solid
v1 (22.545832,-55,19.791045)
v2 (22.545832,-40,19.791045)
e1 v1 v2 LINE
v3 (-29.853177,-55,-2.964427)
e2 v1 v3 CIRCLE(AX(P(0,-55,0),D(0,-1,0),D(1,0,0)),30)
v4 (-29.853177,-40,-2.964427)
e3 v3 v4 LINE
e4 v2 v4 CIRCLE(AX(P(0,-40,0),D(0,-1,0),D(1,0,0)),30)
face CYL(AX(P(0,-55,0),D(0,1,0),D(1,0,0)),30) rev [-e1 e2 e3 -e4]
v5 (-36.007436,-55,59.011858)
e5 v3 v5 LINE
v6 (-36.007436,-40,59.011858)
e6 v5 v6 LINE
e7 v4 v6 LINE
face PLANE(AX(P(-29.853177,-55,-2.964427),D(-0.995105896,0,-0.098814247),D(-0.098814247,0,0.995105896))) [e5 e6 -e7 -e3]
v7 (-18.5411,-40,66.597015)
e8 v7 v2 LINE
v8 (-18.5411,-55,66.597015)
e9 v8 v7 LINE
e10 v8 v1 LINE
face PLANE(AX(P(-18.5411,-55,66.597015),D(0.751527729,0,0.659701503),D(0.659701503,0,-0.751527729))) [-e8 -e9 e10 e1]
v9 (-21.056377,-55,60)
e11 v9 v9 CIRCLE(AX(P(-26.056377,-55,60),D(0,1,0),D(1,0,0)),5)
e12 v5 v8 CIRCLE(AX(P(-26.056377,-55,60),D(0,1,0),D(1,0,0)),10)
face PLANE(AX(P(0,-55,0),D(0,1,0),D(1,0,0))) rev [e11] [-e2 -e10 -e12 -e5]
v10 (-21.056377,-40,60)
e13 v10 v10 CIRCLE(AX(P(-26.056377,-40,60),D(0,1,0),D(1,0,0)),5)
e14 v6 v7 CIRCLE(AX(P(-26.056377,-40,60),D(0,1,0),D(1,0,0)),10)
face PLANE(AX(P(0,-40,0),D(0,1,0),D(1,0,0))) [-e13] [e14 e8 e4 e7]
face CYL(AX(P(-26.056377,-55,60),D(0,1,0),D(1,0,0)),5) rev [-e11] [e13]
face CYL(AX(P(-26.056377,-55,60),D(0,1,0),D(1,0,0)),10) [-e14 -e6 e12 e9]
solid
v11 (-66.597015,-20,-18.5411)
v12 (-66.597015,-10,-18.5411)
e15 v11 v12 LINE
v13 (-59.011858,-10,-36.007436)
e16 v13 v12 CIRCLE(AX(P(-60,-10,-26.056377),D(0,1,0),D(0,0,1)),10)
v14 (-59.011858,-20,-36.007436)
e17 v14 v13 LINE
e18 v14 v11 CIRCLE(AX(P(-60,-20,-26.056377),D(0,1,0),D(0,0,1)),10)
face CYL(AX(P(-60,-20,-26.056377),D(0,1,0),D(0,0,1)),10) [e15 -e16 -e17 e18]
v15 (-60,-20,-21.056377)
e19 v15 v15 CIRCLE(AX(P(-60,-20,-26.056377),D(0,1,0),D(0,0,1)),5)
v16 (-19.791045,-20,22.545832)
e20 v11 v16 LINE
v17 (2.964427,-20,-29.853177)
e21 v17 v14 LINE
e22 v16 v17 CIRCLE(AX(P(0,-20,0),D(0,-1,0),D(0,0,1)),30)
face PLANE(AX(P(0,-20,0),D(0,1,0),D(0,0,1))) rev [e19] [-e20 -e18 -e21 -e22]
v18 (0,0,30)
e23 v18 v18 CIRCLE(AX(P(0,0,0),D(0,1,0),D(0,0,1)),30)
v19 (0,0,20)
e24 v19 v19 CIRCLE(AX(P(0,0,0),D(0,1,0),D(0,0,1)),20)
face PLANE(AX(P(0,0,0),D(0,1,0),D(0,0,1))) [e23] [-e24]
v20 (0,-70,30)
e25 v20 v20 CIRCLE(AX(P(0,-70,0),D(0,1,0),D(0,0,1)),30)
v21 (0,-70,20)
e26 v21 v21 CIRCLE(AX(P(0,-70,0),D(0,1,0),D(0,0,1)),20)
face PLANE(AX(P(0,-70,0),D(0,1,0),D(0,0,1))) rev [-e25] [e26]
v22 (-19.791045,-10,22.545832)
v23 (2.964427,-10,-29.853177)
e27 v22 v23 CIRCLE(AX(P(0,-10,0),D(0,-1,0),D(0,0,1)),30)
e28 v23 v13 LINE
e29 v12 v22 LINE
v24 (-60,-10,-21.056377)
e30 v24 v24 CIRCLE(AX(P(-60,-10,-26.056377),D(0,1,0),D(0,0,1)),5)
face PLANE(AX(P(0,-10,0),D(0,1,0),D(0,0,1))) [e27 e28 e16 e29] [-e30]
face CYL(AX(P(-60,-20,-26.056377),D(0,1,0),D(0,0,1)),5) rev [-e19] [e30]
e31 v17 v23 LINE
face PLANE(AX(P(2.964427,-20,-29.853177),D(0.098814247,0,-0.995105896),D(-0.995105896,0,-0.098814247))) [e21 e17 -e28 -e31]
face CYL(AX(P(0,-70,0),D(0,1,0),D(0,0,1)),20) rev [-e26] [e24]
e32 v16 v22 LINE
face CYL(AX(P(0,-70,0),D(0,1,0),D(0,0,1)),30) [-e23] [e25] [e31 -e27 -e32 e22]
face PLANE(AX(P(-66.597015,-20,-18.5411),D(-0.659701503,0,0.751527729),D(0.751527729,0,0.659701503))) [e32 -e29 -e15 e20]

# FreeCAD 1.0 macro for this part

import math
import FreeCAD as App
import Part
import Sketcher

V = App.Vector

doc = App.newDocument("Part")
body = doc.addObject("PartDesign::Body", "Body")

sketch1 = body.newObject("Sketcher::SketchObject", "Sketch")
sketch1.AttachmentSupport = (doc.getObject("XZ_Plane"), [""])
sketch1.MapMode = "FlatFace"
sketch1.addGeometry(Part.Circle(V(0, 0, 0), V(0, 0, 1), 30), False)
sketch1.addGeometry(Part.Circle(V(0, 0, 0), V(0, 0, 1), 20), False)
sketch1.addConstraint(Sketcher.Constraint("Coincident", 0, 3, -1, 1))
sketch1.addConstraint(Sketcher.Constraint("Coincident", 1, 3, -1, 1))
sketch1.addConstraint(Sketcher.Constraint("Diameter", 0, 60.0))
sketch1.addConstraint(Sketcher.Constraint("Diameter", 1, 40.0))
pad1 = body.newObject("PartDesign::Pad", "Pad")
pad1.Profile = sketch1
pad1.Length = 70

sketch2 = body.newObject("Sketcher::SketchObject", "Sketch001")
sketch2.AttachmentSupport = (doc.getObject("XZ_Plane"), [""])
sketch2.MapMode = "FlatFace"
sketch2.AttachmentOffset = App.Placement(V(0, 0, 10), App.Rotation())
sketch2.addGeometry(Part.LineSegment(V(3, -30, 0), V(-59, -36, 0)), False)
sketch2.addGeometry(Part.ArcOfCircle(Part.Circle(V(-60, -26, 0), V(0, 0, 1), 10), math.radians(131), math.radians(276)), False)
sketch2.addGeometry(Part.LineSegment(V(-67, -19, 0), V(-20, 23, 0)), False)
sketch2.addGeometry(Part.ArcOfCircle(Part.Circle(V(0, 0, 0), V(0, 0, 1), 30), math.radians(131), math.radians(276)), False)
sketch2.addGeometry(Part.Circle(V(-60, -26, 0), V(0, 0, 1), 5), False)
sketch2.addConstraint(Sketcher.Constraint("Tangent", 0, 2, 1, 2))
sketch2.addConstraint(Sketcher.Constraint("Tangent", 1, 1, 2, 1))
sketch2.addConstraint(Sketcher.Constraint("Tangent", 2, 2, 3, 1))
sketch2.addConstraint(Sketcher.Constraint("Tangent", 3, 2, 0, 1))
sketch2.addConstraint(Sketcher.Constraint("Coincident", 3, 3, -1, 1))
sketch2.addConstraint(Sketcher.Constraint("Coincident", 4, 3, 1, 3))
sketch2.addConstraint(Sketcher.Constraint("Diameter", 4, 10.0))
sketch2.addConstraint(Sketcher.Constraint("Radius", 1, 10.0))
sketch2.addConstraint(Sketcher.Constraint("Radius", 3, 30.0))
sketch2.addConstraint(Sketcher.Constraint("DistanceX", 1, 3, -1, 1, 60.0))
sketch2.addConstraint(Sketcher.Constraint("DistanceY", 1, 1, -1, 1, 18.5411))
pad2 = body.newObject("PartDesign::Pad", "Pad001")
pad2.Profile = sketch2
pad2.Length = 10
body2 = doc.addObject("PartDesign::Body", "Body001")

sketch3 = body2.newObject("Sketcher::SketchObject", "Sketch002")
sketch3.AttachmentSupport = (doc.getObject("XZ_Plane001"), [""])
sketch3.MapMode = "FlatFace"
sketch3.AttachmentOffset = App.Placement(V(0, 0, 40), App.Rotation())
sketch3.addGeometry(Part.LineSegment(V(3, -30, 0), V(-59, -36, 0)), False)
sketch3.addGeometry(Part.ArcOfCircle(Part.Circle(V(-60, -26, 0), V(0, 0, 1), 10), math.radians(131), math.radians(276)), False)
sketch3.addGeometry(Part.LineSegment(V(-67, -19, 0), V(-20, 23, 0)), False)
sketch3.addGeometry(Part.ArcOfCircle(Part.Circle(V(0, 0, 0), V(0, 0, 1), 30), math.radians(131), math.radians(276)), False)
sketch3.addGeometry(Part.Circle(V(-60, -26, 0), V(0, 0, 1), 5), False)
sketch3.addConstraint(Sketcher.Constraint("Tangent", 0, 2, 1, 2))
sketch3.addConstraint(Sketcher.Constraint("Tangent", 1, 1, 2, 1))
sketch3.addConstraint(Sketcher.Constraint("Tangent", 2, 2, 3, 1))
sketch3.addConstraint(Sketcher.Constraint("Tangent", 3, 2, 0, 1))
sketch3.addConstraint(Sketcher.Constraint("Coincident", 3, 3, -1, 1))
sketch3.addConstraint(Sketcher.Constraint("Coincident", 4, 3, 1, 3))
sketch3.addConstraint(Sketcher.Constraint("Diameter", 4, 10.0))
sketch3.addConstraint(Sketcher.Constraint("Radius", 1, 10.0))
sketch3.addConstraint(Sketcher.Constraint("Radius", 3, 30.0))
sketch3.addConstraint(Sketcher.Constraint("DistanceX", 1, 3, -1, 1, 60.0))
sketch3.addConstraint(Sketcher.Constraint("DistanceY", 1, 1, -1, 1, 18.5411))
pad3 = body2.newObject("PartDesign::Pad", "Pad002")
pad3.Profile = sketch3
pad3.Length = 15
body3 = doc.addObject("PartDesign::Body", "Body002")
doc.recompute()

body2.Placement = App.Placement(V(0, 0, 0), App.Rotation(V(0, 1, 0), 90))
boolean = body3.newObject("PartDesign::Boolean", "Boolean")
boolean.Type = "Fuse"
boolean.addObjects([body2])

doc.recompute()
